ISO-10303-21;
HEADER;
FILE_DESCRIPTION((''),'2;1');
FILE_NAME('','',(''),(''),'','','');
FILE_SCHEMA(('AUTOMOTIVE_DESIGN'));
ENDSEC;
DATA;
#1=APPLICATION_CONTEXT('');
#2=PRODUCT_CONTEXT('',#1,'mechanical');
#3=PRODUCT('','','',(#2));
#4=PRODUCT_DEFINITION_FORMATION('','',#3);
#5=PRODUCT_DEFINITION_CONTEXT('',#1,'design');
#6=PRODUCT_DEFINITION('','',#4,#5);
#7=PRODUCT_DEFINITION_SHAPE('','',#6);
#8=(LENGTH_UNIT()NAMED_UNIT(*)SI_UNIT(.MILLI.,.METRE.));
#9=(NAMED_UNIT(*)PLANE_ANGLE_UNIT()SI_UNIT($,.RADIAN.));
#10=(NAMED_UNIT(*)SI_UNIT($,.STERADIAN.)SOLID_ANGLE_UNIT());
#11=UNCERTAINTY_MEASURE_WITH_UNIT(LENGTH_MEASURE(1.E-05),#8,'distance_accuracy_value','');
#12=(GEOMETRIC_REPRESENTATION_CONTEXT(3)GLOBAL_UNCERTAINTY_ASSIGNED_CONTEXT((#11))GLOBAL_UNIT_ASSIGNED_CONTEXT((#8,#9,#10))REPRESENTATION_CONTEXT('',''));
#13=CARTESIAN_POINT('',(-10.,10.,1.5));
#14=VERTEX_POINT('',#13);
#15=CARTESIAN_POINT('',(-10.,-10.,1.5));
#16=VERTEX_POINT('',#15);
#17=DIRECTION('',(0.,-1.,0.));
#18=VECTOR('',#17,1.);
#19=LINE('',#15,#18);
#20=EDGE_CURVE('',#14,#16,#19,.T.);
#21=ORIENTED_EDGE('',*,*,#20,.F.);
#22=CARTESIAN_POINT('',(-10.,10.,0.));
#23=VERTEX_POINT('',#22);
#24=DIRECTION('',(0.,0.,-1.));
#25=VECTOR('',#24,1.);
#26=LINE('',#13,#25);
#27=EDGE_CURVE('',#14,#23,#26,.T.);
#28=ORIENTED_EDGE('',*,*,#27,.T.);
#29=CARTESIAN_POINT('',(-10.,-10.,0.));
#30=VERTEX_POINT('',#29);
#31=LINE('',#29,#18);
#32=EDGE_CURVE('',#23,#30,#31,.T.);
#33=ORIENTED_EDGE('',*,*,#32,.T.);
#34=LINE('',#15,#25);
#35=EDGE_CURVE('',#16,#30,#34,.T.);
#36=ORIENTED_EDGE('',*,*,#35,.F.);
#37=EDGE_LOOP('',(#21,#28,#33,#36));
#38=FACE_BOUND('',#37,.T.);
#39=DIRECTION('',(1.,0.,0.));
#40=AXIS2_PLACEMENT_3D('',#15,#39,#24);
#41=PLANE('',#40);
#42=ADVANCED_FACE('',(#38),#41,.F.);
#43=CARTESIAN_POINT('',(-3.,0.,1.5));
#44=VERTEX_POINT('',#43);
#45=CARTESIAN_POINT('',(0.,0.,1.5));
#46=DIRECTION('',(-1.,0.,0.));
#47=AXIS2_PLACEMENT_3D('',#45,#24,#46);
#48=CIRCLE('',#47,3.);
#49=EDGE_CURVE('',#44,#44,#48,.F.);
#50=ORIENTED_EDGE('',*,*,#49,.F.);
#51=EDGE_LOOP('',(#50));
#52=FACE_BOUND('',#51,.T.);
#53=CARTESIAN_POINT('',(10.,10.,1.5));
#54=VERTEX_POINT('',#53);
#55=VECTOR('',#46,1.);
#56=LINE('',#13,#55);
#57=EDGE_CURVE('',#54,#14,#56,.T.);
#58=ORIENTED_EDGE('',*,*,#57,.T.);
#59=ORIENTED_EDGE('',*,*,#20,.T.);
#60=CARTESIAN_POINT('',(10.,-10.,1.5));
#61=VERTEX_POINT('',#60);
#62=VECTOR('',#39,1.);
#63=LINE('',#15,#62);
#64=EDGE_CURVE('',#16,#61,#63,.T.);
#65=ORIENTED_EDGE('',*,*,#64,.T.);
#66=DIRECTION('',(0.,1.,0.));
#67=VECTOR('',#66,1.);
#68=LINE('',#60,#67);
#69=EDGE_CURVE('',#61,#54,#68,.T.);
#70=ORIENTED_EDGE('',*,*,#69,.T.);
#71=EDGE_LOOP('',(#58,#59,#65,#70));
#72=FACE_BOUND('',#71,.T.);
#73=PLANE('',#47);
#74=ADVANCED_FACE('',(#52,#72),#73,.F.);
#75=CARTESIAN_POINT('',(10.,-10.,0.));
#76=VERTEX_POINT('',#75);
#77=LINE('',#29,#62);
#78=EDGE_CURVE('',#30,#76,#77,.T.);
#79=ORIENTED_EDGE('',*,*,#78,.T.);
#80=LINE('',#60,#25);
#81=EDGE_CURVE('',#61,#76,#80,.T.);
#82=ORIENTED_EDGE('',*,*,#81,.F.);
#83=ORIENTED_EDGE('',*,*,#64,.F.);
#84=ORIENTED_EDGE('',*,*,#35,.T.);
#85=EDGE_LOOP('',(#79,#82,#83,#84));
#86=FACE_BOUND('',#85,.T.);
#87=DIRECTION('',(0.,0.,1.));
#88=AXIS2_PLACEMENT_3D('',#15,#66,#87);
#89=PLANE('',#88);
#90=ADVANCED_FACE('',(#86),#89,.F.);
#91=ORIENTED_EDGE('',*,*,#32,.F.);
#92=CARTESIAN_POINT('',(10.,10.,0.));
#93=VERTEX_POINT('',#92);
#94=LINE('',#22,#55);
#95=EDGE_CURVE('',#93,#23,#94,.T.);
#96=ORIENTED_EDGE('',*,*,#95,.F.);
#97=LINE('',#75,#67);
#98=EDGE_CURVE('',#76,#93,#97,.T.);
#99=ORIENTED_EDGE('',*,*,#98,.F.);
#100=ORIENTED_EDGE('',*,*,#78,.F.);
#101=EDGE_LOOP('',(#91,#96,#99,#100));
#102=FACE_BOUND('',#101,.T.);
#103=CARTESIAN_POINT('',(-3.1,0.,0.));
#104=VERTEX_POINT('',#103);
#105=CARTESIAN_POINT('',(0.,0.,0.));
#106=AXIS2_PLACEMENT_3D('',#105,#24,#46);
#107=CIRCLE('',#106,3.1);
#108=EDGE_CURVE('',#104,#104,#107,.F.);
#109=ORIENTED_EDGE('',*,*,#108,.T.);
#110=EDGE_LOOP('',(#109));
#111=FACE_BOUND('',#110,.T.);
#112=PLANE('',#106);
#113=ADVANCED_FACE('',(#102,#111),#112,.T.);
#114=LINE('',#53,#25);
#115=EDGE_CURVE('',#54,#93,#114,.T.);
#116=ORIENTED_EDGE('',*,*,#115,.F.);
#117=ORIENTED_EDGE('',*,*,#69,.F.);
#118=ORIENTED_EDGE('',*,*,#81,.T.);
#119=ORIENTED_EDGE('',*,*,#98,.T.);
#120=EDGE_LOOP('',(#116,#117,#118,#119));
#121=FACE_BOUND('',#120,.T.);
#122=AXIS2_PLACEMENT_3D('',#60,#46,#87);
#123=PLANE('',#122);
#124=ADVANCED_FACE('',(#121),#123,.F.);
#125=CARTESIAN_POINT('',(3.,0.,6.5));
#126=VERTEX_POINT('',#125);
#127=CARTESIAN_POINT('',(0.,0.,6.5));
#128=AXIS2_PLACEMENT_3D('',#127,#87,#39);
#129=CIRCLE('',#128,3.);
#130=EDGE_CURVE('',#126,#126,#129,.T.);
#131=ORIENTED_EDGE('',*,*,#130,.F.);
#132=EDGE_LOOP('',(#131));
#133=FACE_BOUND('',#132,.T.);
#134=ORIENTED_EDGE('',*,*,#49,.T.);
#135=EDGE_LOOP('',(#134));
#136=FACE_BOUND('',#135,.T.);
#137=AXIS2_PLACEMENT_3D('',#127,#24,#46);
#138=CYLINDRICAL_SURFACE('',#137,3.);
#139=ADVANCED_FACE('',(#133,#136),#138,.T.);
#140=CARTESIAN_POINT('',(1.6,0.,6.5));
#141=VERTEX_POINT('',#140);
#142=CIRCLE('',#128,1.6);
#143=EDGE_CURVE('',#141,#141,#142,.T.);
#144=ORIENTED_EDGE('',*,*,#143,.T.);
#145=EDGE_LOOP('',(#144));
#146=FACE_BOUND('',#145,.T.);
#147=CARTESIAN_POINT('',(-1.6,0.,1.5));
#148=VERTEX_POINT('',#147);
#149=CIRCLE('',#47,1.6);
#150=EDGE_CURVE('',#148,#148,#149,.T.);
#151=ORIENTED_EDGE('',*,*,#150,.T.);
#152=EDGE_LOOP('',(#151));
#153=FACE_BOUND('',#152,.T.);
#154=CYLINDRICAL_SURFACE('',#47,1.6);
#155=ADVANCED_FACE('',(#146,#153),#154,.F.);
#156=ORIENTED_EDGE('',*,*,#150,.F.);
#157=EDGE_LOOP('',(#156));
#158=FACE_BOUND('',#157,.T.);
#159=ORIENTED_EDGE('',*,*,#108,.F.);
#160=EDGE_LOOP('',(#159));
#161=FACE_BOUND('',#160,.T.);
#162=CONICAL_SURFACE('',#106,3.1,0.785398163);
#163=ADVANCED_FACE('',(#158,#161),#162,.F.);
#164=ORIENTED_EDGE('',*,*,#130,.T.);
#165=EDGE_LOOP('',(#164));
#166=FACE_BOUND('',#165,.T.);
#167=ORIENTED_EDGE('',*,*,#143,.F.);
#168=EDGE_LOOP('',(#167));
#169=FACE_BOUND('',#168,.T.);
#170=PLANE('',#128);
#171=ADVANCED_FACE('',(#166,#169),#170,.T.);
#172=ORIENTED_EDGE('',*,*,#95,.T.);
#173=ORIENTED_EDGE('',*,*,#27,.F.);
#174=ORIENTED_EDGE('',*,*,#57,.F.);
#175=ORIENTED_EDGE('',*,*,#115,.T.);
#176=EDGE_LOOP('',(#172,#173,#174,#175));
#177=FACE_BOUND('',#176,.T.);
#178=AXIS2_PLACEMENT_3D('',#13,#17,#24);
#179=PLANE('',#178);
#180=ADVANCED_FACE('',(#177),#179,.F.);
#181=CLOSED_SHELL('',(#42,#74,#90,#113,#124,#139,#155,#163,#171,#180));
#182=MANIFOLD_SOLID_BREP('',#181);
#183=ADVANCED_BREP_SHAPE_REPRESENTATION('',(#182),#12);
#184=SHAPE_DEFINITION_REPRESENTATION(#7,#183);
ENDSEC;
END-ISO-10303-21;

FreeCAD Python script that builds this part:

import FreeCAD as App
import Part
import Sketcher


def edges_at(feature, points):
    """Names of the edges that pass closest to the given points."""
    edges = feature.Shape.Edges
    near = lambda p: min(range(len(edges)), key=lambda i: edges[i].distToShape(Part.Vertex(*p))[0])
    return sorted({f"Edge{near(p) + 1}" for p in points})


def add_polygon(sketch, points):
    """Adds a closed chain of lines whose ends are joined by coincident constraints."""
    first, n = sketch.GeometryCount, len(points)
    for a, b in zip(points, points[1:] + points[:1]):
        sketch.addGeometry(Part.LineSegment(App.Vector(*a, 0), App.Vector(*b, 0)), False)
    for i in range(n):
        sketch.addConstraint(Sketcher.Constraint("Coincident", first + i, 2, first + (i + 1) % n, 1))

doc = App.newDocument("Part")
body = doc.addObject("PartDesign::Body", "Body")

sketch1 = body.newObject("Sketcher::SketchObject", "Sketch")
sketch1.AttachmentSupport = (doc.getObject("XY_Plane"), [""])
sketch1.MapMode = "FlatFace"
add_polygon(sketch1, [(-10, 10), (-10, -10), (10, -10), (10, 10)])
sketch1.addGeometry(Part.Circle(App.Vector(0, 0, 0), App.Vector(0, 0, 1), 1.6), False)
sketch1.addConstraint(Sketcher.Constraint("Vertical", 0))
sketch1.addConstraint(Sketcher.Constraint("Horizontal", 1))
sketch1.addConstraint(Sketcher.Constraint("Vertical", 2))
sketch1.addConstraint(Sketcher.Constraint("Horizontal", 3))
sketch1.addConstraint(Sketcher.Constraint("Coincident", 4, 3, -1, 1))
sketch1.addConstraint(Sketcher.Constraint("Symmetric", 0, 2, 2, 2, -1, 1))
sketch1.addConstraint(Sketcher.Constraint("Equal", 3, 0))
sketch1.addConstraint(Sketcher.Constraint("Diameter", 4, 3.2))
sketch1.addConstraint(Sketcher.Constraint("DistanceX", 1, 1, 1, 2, 20.0))
pad1 = body.newObject("PartDesign::Pad", "Pad")
pad1.Profile = sketch1
pad1.Length = 1.5

sketch2 = body.newObject("Sketcher::SketchObject", "Sketch001")
sketch2.AttachmentSupport = (doc.getObject("XY_Plane"), [""])
sketch2.MapMode = "FlatFace"
sketch2.AttachmentOffset = App.Placement(App.Vector(0, 0, 1.5), App.Rotation())
sketch2.addGeometry(Part.Circle(App.Vector(0, 0, 0), App.Vector(0, 0, 1), 3), False)
sketch2.addGeometry(Part.Circle(App.Vector(0, 0, 0), App.Vector(0, 0, 1), 1.6), False)
sketch2.addConstraint(Sketcher.Constraint("Coincident", 0, 3, -1, 1))
sketch2.addConstraint(Sketcher.Constraint("Coincident", 1, 3, -1, 1))
sketch2.addConstraint(Sketcher.Constraint("Diameter", 0, 6.0))
sketch2.addConstraint(Sketcher.Constraint("Diameter", 1, 3.2))
pad2 = body.newObject("PartDesign::Pad", "Pad001")
pad2.Profile = sketch2
pad2.Length = 5
doc.recompute()

chamfer = body.newObject("PartDesign::Chamfer", "Chamfer")
chamfer.Base = (pad2, edges_at(pad2, [(-1.6, 0, 0)]))
chamfer.Size = 1.5

doc.recompute()
